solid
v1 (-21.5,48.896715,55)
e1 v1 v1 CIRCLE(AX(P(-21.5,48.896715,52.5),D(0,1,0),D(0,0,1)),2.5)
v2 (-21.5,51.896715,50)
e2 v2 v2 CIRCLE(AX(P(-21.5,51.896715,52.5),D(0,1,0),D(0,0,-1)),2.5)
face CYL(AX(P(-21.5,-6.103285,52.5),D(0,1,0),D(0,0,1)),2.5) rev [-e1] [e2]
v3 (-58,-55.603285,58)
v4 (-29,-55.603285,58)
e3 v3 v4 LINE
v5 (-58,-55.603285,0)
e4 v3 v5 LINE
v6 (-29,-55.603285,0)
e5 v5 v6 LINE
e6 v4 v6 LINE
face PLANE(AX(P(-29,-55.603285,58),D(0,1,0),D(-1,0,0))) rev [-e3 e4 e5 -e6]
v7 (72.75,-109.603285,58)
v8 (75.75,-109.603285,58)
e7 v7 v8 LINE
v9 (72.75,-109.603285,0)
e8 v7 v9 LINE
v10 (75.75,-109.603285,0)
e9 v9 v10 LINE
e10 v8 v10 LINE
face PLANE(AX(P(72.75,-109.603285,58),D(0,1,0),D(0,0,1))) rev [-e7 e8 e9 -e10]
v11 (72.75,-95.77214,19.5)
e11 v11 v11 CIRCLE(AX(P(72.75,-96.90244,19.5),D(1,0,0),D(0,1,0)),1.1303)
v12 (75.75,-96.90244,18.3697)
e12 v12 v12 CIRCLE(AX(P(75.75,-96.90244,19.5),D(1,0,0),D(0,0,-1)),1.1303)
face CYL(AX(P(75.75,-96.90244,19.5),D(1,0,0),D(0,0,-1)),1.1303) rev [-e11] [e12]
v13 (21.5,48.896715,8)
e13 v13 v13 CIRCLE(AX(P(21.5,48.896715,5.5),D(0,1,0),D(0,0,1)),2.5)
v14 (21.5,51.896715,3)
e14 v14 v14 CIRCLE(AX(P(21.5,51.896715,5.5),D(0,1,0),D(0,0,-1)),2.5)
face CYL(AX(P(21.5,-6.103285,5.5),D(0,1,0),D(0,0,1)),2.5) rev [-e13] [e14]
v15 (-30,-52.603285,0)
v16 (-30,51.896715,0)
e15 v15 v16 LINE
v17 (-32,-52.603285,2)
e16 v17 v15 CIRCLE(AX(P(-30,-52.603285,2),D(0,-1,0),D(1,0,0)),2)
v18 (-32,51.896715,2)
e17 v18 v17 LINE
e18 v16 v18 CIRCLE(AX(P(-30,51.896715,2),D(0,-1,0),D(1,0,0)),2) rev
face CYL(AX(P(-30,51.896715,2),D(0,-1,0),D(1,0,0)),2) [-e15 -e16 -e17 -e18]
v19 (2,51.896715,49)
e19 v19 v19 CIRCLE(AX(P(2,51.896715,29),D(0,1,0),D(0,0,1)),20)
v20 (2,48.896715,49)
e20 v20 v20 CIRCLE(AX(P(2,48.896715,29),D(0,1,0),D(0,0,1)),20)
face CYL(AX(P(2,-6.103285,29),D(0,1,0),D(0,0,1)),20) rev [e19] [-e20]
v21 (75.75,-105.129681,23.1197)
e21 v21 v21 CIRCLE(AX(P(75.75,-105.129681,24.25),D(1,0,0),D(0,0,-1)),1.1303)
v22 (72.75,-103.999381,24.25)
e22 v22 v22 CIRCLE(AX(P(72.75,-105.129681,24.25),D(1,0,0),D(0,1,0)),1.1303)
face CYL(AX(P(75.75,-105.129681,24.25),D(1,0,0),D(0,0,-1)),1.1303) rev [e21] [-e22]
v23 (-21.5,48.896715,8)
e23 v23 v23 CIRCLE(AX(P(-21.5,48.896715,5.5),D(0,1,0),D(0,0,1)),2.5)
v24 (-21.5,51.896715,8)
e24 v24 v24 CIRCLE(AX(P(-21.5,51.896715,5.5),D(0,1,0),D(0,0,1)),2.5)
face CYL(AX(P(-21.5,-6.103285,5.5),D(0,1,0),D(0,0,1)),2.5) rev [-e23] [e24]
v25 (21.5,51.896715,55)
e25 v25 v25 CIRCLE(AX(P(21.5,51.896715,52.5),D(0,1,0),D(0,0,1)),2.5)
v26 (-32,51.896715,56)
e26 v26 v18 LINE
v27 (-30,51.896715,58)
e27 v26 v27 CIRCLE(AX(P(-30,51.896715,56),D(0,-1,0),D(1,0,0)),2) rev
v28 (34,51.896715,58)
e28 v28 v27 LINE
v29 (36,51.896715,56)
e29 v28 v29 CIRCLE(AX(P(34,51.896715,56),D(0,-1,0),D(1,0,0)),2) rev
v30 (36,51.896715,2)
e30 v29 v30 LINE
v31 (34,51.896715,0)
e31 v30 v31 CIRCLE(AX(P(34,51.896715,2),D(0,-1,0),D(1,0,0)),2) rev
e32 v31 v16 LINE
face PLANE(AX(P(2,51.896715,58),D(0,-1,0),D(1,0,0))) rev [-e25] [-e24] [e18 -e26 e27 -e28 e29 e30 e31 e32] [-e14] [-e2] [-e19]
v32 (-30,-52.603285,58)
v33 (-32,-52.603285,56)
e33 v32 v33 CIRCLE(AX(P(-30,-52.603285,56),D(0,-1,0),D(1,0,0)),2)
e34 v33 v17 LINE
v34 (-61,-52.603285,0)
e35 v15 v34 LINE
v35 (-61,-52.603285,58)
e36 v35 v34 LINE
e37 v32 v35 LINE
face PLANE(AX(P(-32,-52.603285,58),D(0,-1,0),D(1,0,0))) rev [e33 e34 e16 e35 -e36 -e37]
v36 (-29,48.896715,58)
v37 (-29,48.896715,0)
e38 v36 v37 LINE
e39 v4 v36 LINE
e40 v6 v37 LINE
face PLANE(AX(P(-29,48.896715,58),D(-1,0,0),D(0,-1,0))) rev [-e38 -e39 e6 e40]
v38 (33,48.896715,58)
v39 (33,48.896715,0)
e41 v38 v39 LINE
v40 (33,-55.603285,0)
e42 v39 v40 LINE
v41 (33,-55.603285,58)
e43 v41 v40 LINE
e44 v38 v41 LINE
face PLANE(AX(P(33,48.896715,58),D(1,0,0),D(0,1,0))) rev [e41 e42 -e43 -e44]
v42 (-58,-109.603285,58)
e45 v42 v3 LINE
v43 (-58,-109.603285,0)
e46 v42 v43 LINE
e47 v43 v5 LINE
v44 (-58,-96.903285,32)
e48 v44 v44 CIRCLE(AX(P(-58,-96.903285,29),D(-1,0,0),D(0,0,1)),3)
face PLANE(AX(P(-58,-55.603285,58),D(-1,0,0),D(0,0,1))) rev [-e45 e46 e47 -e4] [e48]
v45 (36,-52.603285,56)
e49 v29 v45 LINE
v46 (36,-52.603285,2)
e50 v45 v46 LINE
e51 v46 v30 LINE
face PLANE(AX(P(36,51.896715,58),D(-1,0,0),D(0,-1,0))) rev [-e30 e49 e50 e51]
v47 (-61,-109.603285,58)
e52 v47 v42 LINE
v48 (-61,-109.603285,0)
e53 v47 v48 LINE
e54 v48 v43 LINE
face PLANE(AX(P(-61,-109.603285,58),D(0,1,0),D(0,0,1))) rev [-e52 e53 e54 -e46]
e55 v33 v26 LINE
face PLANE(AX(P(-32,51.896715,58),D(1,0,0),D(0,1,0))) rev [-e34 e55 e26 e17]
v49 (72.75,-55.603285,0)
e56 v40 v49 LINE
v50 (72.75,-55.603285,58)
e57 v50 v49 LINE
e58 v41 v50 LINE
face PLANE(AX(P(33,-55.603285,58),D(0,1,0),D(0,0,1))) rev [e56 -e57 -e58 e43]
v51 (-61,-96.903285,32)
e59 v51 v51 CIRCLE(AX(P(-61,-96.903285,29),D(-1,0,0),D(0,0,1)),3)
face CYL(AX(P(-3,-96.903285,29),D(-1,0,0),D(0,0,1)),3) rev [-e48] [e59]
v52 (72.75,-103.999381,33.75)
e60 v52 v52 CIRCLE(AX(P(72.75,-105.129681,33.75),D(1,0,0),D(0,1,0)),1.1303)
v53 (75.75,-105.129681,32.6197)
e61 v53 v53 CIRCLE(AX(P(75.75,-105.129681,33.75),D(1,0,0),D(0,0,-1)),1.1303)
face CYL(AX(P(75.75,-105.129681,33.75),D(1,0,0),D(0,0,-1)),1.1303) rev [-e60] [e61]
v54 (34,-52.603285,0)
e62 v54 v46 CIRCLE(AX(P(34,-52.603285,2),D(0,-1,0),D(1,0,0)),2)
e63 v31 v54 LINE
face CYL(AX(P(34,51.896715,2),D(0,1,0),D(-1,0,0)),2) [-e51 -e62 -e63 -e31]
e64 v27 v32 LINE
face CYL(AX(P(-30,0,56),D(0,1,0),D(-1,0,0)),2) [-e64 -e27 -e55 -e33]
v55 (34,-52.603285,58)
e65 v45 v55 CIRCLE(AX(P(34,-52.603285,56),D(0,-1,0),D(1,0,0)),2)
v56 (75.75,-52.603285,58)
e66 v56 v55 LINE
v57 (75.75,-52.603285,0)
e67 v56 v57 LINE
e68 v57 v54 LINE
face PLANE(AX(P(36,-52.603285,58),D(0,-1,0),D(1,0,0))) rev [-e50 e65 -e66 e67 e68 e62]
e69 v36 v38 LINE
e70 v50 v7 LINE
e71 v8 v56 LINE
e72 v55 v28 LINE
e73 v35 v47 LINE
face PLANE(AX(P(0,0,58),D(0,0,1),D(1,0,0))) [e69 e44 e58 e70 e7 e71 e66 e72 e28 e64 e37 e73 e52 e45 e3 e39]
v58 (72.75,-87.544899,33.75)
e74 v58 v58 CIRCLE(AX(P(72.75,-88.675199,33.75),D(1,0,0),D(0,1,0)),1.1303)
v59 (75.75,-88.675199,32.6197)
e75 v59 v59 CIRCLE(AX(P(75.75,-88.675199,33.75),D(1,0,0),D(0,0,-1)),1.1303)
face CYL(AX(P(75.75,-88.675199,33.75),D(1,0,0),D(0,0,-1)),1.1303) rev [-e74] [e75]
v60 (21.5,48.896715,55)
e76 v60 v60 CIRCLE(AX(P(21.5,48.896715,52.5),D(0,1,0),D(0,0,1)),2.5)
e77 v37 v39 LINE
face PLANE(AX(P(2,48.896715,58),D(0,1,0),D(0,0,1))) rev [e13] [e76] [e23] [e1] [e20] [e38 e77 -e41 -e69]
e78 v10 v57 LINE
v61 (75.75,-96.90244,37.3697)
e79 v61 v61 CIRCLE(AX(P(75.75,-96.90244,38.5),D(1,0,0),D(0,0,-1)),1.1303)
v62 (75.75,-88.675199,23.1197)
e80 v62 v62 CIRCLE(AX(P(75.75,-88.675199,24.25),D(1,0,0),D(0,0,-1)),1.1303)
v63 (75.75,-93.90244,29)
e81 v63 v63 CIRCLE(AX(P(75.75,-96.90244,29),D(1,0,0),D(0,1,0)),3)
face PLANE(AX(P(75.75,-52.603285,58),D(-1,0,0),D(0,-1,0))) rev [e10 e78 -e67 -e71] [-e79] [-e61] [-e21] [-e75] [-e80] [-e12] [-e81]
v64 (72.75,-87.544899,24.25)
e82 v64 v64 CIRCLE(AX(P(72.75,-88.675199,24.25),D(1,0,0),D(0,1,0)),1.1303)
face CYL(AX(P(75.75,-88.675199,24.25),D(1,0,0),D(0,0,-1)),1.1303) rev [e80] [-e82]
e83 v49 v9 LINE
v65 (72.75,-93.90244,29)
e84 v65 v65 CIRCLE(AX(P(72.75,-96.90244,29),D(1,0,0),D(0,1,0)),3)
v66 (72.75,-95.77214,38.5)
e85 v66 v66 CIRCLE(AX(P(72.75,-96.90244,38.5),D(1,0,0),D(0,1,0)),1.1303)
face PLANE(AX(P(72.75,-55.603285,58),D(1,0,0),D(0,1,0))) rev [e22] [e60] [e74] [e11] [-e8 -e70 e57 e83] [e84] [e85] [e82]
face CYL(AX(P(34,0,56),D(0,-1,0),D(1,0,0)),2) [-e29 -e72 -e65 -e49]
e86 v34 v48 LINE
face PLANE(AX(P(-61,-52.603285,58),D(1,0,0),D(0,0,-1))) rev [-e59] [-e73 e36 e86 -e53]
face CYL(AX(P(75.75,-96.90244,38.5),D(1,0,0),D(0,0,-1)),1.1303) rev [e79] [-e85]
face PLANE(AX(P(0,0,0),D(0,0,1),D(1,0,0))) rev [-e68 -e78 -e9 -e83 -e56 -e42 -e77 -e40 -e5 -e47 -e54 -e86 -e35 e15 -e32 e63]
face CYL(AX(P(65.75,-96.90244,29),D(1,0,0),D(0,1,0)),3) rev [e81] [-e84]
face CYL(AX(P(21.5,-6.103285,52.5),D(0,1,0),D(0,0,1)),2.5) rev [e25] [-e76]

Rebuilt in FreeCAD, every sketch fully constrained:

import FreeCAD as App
import Part
import Sketcher

V = App.Vector


def edges_at(feature, points):
    """Names of the edges that pass closest to the given points."""
    edges = feature.Shape.Edges
    near = lambda p: min(range(len(edges)), key=lambda i: edges[i].distToShape(Part.Vertex(*p))[0])
    return sorted({f"Edge{near(p) + 1}" for p in points})


def add_polygon(sketch, points):
    """Adds a closed chain of lines whose ends are joined by coincident constraints."""
    first, n = sketch.GeometryCount, len(points)
    for a, b in zip(points, points[1:] + points[:1]):
        sketch.addGeometry(Part.LineSegment(App.Vector(*a, 0), App.Vector(*b, 0)), False)
    for i in range(n):
        sketch.addConstraint(Sketcher.Constraint("Coincident", first + i, 2, first + (i + 1) % n, 1))

doc = App.newDocument("Part")
body = doc.addObject("PartDesign::Body", "Body")

# Sketch on XY plane
sketch1 = body.newObject("Sketcher::SketchObject", "Sketch")
sketch1.AttachmentSupport = (doc.getObject("XY_Plane"), [""])
sketch1.MapMode = "FlatFace"
add_polygon(sketch1, [(36, 51.9), (-32, 51.9), (-32, -52.6), (-61, -52.6), (-61, -109.6), (-58, -109.6), (-58, -55.6), (-29, -55.6), (-29, 48.9), (33, 48.9), (33, -55.6), (72.8, -55.6), (72.8, -109.6), (75.8, -109.6), (75.8, -52.6), (36, -52.6)])  # lines 0-15
sketch1.addConstraint(Sketcher.Constraint("Horizontal", 0))
sketch1.addConstraint(Sketcher.Constraint("Vertical", 1))
sketch1.addConstraint(Sketcher.Constraint("Horizontal", 2))
sketch1.addConstraint(Sketcher.Constraint("Vertical", 3))
sketch1.addConstraint(Sketcher.Constraint("Horizontal", 4))
sketch1.addConstraint(Sketcher.Constraint("Vertical", 5))
sketch1.addConstraint(Sketcher.Constraint("Horizontal", 6))
sketch1.addConstraint(Sketcher.Constraint("Vertical", 7))
sketch1.addConstraint(Sketcher.Constraint("Horizontal", 8))
sketch1.addConstraint(Sketcher.Constraint("Vertical", 9))
sketch1.addConstraint(Sketcher.Constraint("Horizontal", 10))
sketch1.addConstraint(Sketcher.Constraint("Vertical", 11))
sketch1.addConstraint(Sketcher.Constraint("Horizontal", 12))
sketch1.addConstraint(Sketcher.Constraint("Vertical", 13))
sketch1.addConstraint(Sketcher.Constraint("Horizontal", 14))
sketch1.addConstraint(Sketcher.Constraint("Vertical", 15))
sketch1.addConstraint(Sketcher.Constraint("Horizontal", 6, 2, 9, 2))
sketch1.addConstraint(Sketcher.Constraint("Horizontal", 4, 2, 11, 2))
sketch1.addConstraint(Sketcher.Constraint("Horizontal", 2, 2, 13, 2))
sketch1.addConstraint(Sketcher.Constraint("Equal", 2, 6))
sketch1.addConstraint(Sketcher.Constraint("Equal", 4, 12))
sketch1.addConstraint(Sketcher.Constraint("Equal", 10, 14))
sketch1.addConstraint(Sketcher.Constraint("Equal", 1, 7))
sketch1.addConstraint(Sketcher.Constraint("DistanceX", 0, 2, 0, 1, 68.0))
sketch1.addConstraint(Sketcher.Constraint("DistanceX", 2, 2, 2, 1, 29.0))
sketch1.addConstraint(Sketcher.Constraint("DistanceX", 4, 1, 4, 2, 3.0))
sketch1.addConstraint(Sketcher.Constraint("DistanceY", 3, 2, 3, 1, 57.0))
sketch1.addConstraint(Sketcher.Constraint("DistanceY", 5, 1, 5, 2, 54.0))
sketch1.addConstraint(Sketcher.Constraint("DistanceY", 1, 2, 1, 1, 104.5))
sketch1.addConstraint(Sketcher.Constraint("DistanceX", 0, 2, -1, 1, 32.0))
sketch1.addConstraint(Sketcher.Constraint("DistanceX", 10, 1, 10, 2, 39.75))
sketch1.addConstraint(Sketcher.Constraint("DistanceY", -1, 1, 0, 2, 51.896715))
pad1 = body.newObject("PartDesign::Pad", "Pad")
pad1.Profile = sketch1
pad1.Length = 58

# Sketch on XZ plane
sketch2 = body.newObject("Sketcher::SketchObject", "Sketch001")
sketch2.AttachmentSupport = (doc.getObject("XZ_Plane"), [""])
sketch2.MapMode = "FlatFace"
sketch2.AttachmentOffset = App.Placement(V(0, 0, -51.896715), App.Rotation())
sketch2.addGeometry(Part.Circle(V(-21.5, 5.5, 0), V(0, 0, 1), 2.5), False)
sketch2.addGeometry(Part.Circle(V(21.5, 5.5, 0), V(0, 0, 1), 2.5), False)
sketch2.addGeometry(Part.Circle(V(21.5, 52.5, 0), V(0, 0, 1), 2.5), False)
sketch2.addGeometry(Part.Circle(V(-21.5, 52.5, 0), V(0, 0, 1), 2.5), False)
sketch2.addGeometry(Part.Circle(V(2, 29, 0), V(0, 0, 1), 20), False)
sketch2.addConstraint(Sketcher.Constraint("Equal", 0, 1))
sketch2.addConstraint(Sketcher.Constraint("Equal", 1, 2))
sketch2.addConstraint(Sketcher.Constraint("Equal", 2, 3))
sketch2.addConstraint(Sketcher.Constraint("Symmetric", 0, 3, 1, 3, -2))
sketch2.addConstraint(Sketcher.Constraint("Symmetric", 2, 3, 3, 3, -2))
sketch2.addConstraint(Sketcher.Constraint("Vertical", 1, 3, 2, 3))
sketch2.addConstraint(Sketcher.Constraint("Diameter", 0, 5.0))
sketch2.addConstraint(Sketcher.Constraint("Diameter", 4, 40.0))
sketch2.addConstraint(Sketcher.Constraint("DistanceX", -1, 1, 4, 3, 2.0))
sketch2.addConstraint(Sketcher.Constraint("DistanceY", -1, 1, 4, 3, 29.0))
sketch2.addConstraint(Sketcher.Constraint("DistanceX", 0, 3, 1, 3, 43.0))
sketch2.addConstraint(Sketcher.Constraint("DistanceY", 1, 3, 2, 3, 47.0))
sketch2.addConstraint(Sketcher.Constraint("DistanceY", -1, 1, 0, 3, 5.5))
pocket1 = body.newObject("PartDesign::Pocket", "Pocket")
pocket1.Profile = sketch2
pocket1.Length = 58
pocket1.Reversed = True

# Sketch on YZ plane
sketch3 = body.newObject("Sketcher::SketchObject", "Sketch002")
sketch3.AttachmentSupport = (doc.getObject("YZ_Plane"), [""])
sketch3.MapMode = "FlatFace"
sketch3.AttachmentOffset = App.Placement(V(0, 0, -61), App.Rotation())
sketch3.addGeometry(Part.Circle(V(-96.9, 29, 0), V(0, 0, 1), 3), False)
sketch3.addConstraint(Sketcher.Constraint("Diameter", 0, 6.0))
sketch3.addConstraint(Sketcher.Constraint("DistanceY", -1, 1, 0, 3, 29.0))
sketch3.addConstraint(Sketcher.Constraint("DistanceX", 0, 3, -1, 1, 96.903285))
pocket2 = body.newObject("PartDesign::Pocket", "Pocket001")
pocket2.Profile = sketch3
pocket2.Length = 58
pocket2.Reversed = True

# Sketch on YZ plane
sketch4 = body.newObject("Sketcher::SketchObject", "Sketch003")
sketch4.AttachmentSupport = (doc.getObject("YZ_Plane"), [""])
sketch4.MapMode = "FlatFace"
sketch4.AttachmentOffset = App.Placement(V(0, 0, 75.75), App.Rotation())
sketch4.addGeometry(Part.Circle(V(-96.9, 19.5, 0), V(0, 0, 1), 1.1), False)
sketch4.addGeometry(Part.Circle(V(-105.1, 24.2, 0), V(0, 0, 1), 1.1), False)
sketch4.addGeometry(Part.Circle(V(-105.1, 33.8, 0), V(0, 0, 1), 1.1), False)
sketch4.addGeometry(Part.Circle(V(-96.9, 38.5, 0), V(0, 0, 1), 1.1), False)
sketch4.addGeometry(Part.Circle(V(-88.7, 33.8, 0), V(0, 0, 1), 1.1), False)
sketch4.addGeometry(Part.Circle(V(-88.7, 24.2, 0), V(0, 0, 1), 1.1), False)
sketch4.addConstraint(Sketcher.Constraint("Equal", 0, 1))
sketch4.addConstraint(Sketcher.Constraint("Equal", 1, 2))
sketch4.addConstraint(Sketcher.Constraint("Equal", 2, 3))
sketch4.addConstraint(Sketcher.Constraint("Equal", 3, 4))
sketch4.addConstraint(Sketcher.Constraint("Equal", 4, 5))
sketch4.addConstraint(Sketcher.Constraint("Horizontal", 2, 3, 4, 3))
sketch4.addConstraint(Sketcher.Constraint("Horizontal", 1, 3, 5, 3))
sketch4.addConstraint(Sketcher.Constraint("Vertical", 1, 3, 2, 3))
sketch4.addConstraint(Sketcher.Constraint("Vertical", 0, 3, 3, 3))
sketch4.addConstraint(Sketcher.Constraint("Vertical", 4, 3, 5, 3))
sketch4.addConstraint(Sketcher.Constraint("DistanceY", 0, 3, 3, 3, 19.0))
sketch4.addConstraint(Sketcher.Constraint("Diameter", 0, 2.2606))
sketch4.addConstraint(Sketcher.Constraint("DistanceY", -1, 1, 0, 3, 19.5))
sketch4.addConstraint(Sketcher.Constraint("DistanceY", 1, 3, 2, 3, 9.5))
sketch4.addConstraint(Sketcher.Constraint("DistanceY", -1, 1, 1, 3, 24.25))
sketch4.addConstraint(Sketcher.Constraint("DistanceX", 4, 3, -1, 1, 88.675199))
sketch4.addConstraint(Sketcher.Constraint("DistanceX", 0, 3, -1, 1, 96.90244))
sketch4.addConstraint(Sketcher.Constraint("DistanceX", 1, 3, -1, 1, 105.129681))
doc.recompute()
hole = body.newObject("PartDesign::Hole", "Hole")
hole.Profile = sketch4
hole.ThreadType = "None"
hole.Diameter = 2.2606
hole.DepthType = "Dimension"
hole.Depth = 7.6
hole.DrillPoint = "Angled"
hole.DrillPointAngle = 118

# Sketch on YZ plane
sketch5 = body.newObject("Sketcher::SketchObject", "Sketch004")
sketch5.AttachmentSupport = (doc.getObject("YZ_Plane"), [""])
sketch5.MapMode = "FlatFace"
sketch5.AttachmentOffset = App.Placement(V(0, 0, 75.75), App.Rotation())
sketch5.addGeometry(Part.Circle(V(-96.9, 29, 0), V(0, 0, 1), 3), False)
sketch5.addConstraint(Sketcher.Constraint("Diameter", 0, 6.0))
sketch5.addConstraint(Sketcher.Constraint("DistanceY", -1, 1, 0, 3, 29.0))
sketch5.addConstraint(Sketcher.Constraint("DistanceX", 0, 3, -1, 1, 96.90244))
pocket3 = body.newObject("PartDesign::Pocket", "Pocket002")
pocket3.Profile = sketch5
pocket3.Length = 10
doc.recompute()

fillet = body.newObject("PartDesign::Fillet", "Fillet")
fillet.Base = (pocket3, edges_at(pocket3, [(36, -0.353, 58)]))
fillet.Radius = 2
doc.recompute()

fillet2 = body.newObject("PartDesign::Fillet", "Fillet001")
fillet2.Base = (fillet, edges_at(fillet, [(36, -0.353, 0)]))
fillet2.Radius = 2
doc.recompute()

fillet3 = body.newObject("PartDesign::Fillet", "Fillet002")
fillet3.Base = (fillet2, edges_at(fillet2, [(-32, -0.353, 0)]))
fillet3.Radius = 2
doc.recompute()

fillet4 = body.newObject("PartDesign::Fillet", "Fillet003")
fillet4.Base = (fillet3, edges_at(fillet3, [(-32, -0.353, 58)]))
fillet4.Radius = 2

doc.recompute()
